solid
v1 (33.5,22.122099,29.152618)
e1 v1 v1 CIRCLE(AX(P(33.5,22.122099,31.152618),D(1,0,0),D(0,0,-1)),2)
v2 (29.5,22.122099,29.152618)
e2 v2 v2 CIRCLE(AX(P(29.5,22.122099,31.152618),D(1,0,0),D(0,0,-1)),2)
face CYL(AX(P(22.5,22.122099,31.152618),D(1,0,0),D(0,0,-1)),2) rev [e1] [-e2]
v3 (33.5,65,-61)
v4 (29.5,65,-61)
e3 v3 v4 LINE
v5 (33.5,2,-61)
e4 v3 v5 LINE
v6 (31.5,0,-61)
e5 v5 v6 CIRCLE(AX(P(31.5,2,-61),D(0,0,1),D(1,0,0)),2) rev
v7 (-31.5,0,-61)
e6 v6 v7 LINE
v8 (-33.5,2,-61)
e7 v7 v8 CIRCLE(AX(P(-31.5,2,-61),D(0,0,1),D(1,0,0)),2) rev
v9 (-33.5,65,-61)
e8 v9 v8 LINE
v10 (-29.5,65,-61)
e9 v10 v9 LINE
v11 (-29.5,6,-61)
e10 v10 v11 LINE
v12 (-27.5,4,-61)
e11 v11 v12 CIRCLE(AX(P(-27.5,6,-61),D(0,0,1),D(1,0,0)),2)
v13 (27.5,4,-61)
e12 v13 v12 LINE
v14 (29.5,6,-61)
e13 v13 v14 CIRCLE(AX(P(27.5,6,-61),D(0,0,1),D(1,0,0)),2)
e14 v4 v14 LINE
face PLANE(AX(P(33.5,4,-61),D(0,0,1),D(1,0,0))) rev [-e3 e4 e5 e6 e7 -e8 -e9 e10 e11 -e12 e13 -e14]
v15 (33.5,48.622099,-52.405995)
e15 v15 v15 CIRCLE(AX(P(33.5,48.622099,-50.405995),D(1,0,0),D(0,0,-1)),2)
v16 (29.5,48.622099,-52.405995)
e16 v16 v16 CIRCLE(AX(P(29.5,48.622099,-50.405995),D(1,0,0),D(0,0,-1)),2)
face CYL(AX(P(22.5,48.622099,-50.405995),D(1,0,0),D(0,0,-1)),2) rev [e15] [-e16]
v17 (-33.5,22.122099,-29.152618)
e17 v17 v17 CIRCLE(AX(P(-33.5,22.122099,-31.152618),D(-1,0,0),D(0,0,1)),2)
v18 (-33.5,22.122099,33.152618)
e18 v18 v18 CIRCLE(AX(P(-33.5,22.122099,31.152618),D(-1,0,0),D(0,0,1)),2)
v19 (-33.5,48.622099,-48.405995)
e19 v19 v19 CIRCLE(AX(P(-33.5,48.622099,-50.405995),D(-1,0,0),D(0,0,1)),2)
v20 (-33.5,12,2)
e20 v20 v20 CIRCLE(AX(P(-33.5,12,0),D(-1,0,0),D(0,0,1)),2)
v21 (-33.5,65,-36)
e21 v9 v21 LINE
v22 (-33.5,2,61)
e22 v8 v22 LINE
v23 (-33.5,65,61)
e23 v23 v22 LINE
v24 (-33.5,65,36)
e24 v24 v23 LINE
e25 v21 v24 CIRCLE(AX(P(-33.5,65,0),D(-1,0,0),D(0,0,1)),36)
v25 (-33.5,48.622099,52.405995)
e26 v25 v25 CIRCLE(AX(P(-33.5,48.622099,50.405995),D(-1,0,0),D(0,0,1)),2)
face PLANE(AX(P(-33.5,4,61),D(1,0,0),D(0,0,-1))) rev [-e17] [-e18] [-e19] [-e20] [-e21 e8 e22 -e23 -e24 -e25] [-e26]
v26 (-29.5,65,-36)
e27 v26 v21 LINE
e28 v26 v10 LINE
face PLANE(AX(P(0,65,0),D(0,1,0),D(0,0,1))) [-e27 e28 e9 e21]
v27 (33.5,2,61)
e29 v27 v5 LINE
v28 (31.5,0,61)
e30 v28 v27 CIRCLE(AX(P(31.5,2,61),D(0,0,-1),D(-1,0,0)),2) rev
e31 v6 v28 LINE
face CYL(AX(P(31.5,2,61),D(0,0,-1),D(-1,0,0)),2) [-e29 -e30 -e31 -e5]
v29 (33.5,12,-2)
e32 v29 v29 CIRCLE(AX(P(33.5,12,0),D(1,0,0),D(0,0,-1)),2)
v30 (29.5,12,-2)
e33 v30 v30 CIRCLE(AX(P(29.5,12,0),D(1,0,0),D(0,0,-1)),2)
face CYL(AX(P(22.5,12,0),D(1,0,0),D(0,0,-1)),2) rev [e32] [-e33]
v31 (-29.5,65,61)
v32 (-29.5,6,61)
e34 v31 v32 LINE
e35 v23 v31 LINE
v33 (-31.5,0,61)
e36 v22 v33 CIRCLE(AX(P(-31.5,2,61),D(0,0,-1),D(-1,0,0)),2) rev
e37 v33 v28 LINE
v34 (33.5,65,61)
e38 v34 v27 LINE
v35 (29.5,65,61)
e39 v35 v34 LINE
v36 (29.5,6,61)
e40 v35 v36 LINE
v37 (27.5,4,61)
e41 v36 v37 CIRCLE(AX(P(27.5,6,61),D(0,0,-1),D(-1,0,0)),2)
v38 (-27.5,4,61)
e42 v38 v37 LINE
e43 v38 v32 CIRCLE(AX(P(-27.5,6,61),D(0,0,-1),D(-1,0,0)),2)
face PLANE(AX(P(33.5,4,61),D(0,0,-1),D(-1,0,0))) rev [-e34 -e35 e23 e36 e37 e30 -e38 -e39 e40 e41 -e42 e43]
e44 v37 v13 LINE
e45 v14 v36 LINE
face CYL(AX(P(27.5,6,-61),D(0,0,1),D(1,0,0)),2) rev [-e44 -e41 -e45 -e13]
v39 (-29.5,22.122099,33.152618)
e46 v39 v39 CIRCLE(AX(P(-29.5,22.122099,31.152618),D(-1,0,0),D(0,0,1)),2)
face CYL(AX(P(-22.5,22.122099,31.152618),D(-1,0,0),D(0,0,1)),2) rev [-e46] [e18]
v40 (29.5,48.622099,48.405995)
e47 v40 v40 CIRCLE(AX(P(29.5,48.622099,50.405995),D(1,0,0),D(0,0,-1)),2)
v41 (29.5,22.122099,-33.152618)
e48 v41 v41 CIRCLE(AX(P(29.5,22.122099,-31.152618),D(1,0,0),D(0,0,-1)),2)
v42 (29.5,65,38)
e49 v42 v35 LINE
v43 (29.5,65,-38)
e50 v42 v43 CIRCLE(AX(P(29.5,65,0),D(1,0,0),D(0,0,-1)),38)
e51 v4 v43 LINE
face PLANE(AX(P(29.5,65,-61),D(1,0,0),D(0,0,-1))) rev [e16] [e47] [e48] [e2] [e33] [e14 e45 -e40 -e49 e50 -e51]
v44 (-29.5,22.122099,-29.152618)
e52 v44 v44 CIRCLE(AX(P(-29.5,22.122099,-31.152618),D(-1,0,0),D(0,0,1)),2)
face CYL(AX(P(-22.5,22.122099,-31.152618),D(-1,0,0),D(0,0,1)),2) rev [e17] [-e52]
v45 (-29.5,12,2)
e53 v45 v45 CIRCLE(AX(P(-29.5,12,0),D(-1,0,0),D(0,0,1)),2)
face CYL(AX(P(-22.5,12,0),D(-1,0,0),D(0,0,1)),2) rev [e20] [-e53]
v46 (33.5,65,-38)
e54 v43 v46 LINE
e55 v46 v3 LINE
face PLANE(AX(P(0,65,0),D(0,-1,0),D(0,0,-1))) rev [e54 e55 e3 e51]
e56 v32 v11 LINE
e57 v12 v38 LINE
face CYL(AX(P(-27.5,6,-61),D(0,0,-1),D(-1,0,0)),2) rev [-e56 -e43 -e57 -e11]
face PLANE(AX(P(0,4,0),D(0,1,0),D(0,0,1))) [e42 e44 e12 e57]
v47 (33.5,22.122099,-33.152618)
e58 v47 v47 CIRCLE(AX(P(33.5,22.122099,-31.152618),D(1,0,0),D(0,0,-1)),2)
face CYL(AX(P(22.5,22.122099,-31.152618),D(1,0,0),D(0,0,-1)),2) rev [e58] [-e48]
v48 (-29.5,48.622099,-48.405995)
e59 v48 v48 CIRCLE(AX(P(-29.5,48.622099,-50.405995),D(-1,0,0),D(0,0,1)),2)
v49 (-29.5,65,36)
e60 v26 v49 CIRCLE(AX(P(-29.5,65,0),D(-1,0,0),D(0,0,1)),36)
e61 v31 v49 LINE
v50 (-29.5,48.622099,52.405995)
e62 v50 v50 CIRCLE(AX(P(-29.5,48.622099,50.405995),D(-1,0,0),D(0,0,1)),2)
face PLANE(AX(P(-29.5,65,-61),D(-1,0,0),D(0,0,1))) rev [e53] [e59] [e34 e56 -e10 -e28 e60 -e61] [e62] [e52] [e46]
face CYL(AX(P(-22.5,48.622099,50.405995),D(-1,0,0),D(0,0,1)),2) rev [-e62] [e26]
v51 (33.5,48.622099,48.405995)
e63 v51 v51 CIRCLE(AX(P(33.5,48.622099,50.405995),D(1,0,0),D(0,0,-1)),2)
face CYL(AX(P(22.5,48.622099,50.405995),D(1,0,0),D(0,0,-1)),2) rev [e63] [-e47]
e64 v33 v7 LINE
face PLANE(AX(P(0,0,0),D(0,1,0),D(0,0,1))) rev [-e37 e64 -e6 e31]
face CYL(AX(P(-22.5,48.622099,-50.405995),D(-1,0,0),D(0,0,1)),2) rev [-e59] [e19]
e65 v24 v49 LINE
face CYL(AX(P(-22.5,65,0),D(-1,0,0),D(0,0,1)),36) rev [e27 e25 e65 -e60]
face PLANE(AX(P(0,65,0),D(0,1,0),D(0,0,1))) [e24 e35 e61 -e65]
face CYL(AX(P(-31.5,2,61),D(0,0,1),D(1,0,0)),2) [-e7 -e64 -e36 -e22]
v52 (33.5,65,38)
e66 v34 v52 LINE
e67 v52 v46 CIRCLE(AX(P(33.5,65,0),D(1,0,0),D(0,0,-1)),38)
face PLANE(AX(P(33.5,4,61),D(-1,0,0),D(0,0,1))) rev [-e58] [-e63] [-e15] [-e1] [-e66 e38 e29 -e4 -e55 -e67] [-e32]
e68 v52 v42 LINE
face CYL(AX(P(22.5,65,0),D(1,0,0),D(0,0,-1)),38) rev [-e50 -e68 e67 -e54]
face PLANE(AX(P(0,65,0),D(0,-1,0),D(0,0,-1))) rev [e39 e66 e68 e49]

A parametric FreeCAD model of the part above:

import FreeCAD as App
import Part
import Sketcher

V = App.Vector
Q = App.Units.Quantity


def edges_at(feature, points):
    """Names of the edges that pass closest to the given points."""
    edges = feature.Shape.Edges
    near = lambda p: min(range(len(edges)), key=lambda i: edges[i].distToShape(Part.Vertex(*p))[0])
    return sorted({f"Edge{near(p) + 1}" for p in points})

doc = App.newDocument("Part")
body = doc.addObject("PartDesign::Body", "Body")

# Sketch on XZ plane
sketch1 = body.newObject("Sketcher::SketchObject", "Sketch")
sketch1.AttachmentSupport = (doc.getObject("XZ_Plane"), [""])
sketch1.MapMode = "FlatFace"
sketch1.addGeometry([
    Part.LineSegment(V(-34, -61, 0), V(-34, 61, 0)),
    Part.LineSegment(V(-34, 61, 0), V(34, 61, 0)),
    Part.LineSegment(V(34, 61, 0), V(34, -61, 0)),
    Part.LineSegment(V(34, -61, 0), V(-34, -61, 0)),
], False)
sketch1.addConstraint([
    Sketcher.Constraint("Coincident", 0, 2, 1, 1),
    Sketcher.Constraint("Coincident", 1, 2, 2, 1),
    Sketcher.Constraint("Coincident", 2, 2, 3, 1),
    Sketcher.Constraint("Coincident", 3, 2, 0, 1),
    Sketcher.Constraint("Vertical", 0),
    Sketcher.Constraint("Horizontal", 1),
    Sketcher.Constraint("Vertical", 2),
    Sketcher.Constraint("Horizontal", 3),
    Sketcher.Constraint("Symmetric", 0, 2, 2, 2, -1, 1),
    Sketcher.Constraint("DistanceX", 1, 1, 1, 2, Q("67 mm")),
    Sketcher.Constraint("DistanceY", 0, 1, 0, 2, Q("122 mm")),
])
pad1 = body.newObject("PartDesign::Pad", "Pad")
pad1.Profile = sketch1
pad1.Length = 4
pad1.Reversed = True

# Sketch on XZ plane
sketch2 = body.newObject("Sketcher::SketchObject", "Sketch001")
sketch2.AttachmentSupport = (doc.getObject("XZ_Plane"), [""])
sketch2.MapMode = "FlatFace"
sketch2.AttachmentOffset = App.Placement(V(0, 0, -4), App.Rotation())
sketch2.addGeometry([
    Part.LineSegment(V(-33.5, -61, 0), V(-33.5, 61, 0)),  # 0
    Part.LineSegment(V(-33.5, 61, 0), V(-29.5, 61, 0)),  # 1
    Part.LineSegment(V(-29.5, 61, 0), V(-29.5, -61, 0)),  # 2
    Part.LineSegment(V(-29.5, -61, 0), V(-33.5, -61, 0)),  # 3
    Part.LineSegment(V(29.5, -61, 0), V(29.5, 61, 0)),  # 4
    Part.LineSegment(V(29.5, 61, 0), V(33.5, 61, 0)),  # 5
    Part.LineSegment(V(33.5, 61, 0), V(33.5, -61, 0)),  # 6
    Part.LineSegment(V(33.5, -61, 0), V(29.5, -61, 0)),  # 7
], False)
sketch2.addConstraint([
    Sketcher.Constraint("Coincident", 0, 2, 1, 1),
    Sketcher.Constraint("Coincident", 1, 2, 2, 1),
    Sketcher.Constraint("Coincident", 2, 2, 3, 1),
    Sketcher.Constraint("Coincident", 3, 2, 0, 1),
    Sketcher.Constraint("Coincident", 4, 2, 5, 1),
    Sketcher.Constraint("Coincident", 5, 2, 6, 1),
    Sketcher.Constraint("Coincident", 6, 2, 7, 1),
    Sketcher.Constraint("Coincident", 7, 2, 4, 1),
    Sketcher.Constraint("Vertical", 0),
    Sketcher.Constraint("Horizontal", 1),
    Sketcher.Constraint("Vertical", 2),
    Sketcher.Constraint("Horizontal", 3),
    Sketcher.Constraint("Vertical", 4),
    Sketcher.Constraint("Horizontal", 5),
    Sketcher.Constraint("Vertical", 6),
    Sketcher.Constraint("Horizontal", 7),
    Sketcher.Constraint("Symmetric", 2, 2, 4, 2, -1, 1),
    Sketcher.Constraint("Symmetric", 0, 2, 6, 2, -1, 1),
    Sketcher.Constraint("Horizontal", 1, 2, 4, 2),
    Sketcher.Constraint("DistanceX", 1, 1, 1, 2, Q("4 mm")),
    Sketcher.Constraint("DistanceY", 0, 1, 0, 2, Q("122 mm")),
    Sketcher.Constraint("DistanceX", 1, 2, 4, 2, Q("59 mm")),
])
pad2 = body.newObject("PartDesign::Pad", "Pad001")
pad2.Profile = sketch2
pad2.Length = 61
pad2.Reversed = True
doc.recompute()

fillet = body.newObject("PartDesign::Fillet", "Fillet")
fillet.Base = (pad2, edges_at(pad2, [
    (-29.5, 4, 0),
    (29.5, 4, 0),
    (33.5, 0, 0),
    (-33.5, 0, 0),
]))
fillet.Radius = 2

# Sketch on YZ plane
sketch3 = body.newObject("Sketcher::SketchObject", "Sketch002")
sketch3.AttachmentSupport = (doc.getObject("YZ_Plane"), [""])
sketch3.MapMode = "FlatFace"
sketch3.AttachmentOffset = App.Placement(V(0, 0, 33.5), App.Rotation())
sketch3.addGeometry([
    Part.Circle(V(65, 0, 0), V(0, 0, 1), 38),  # 0
    Part.Circle(V(12, 0, 0), V(0, 0, 1), 2),  # 1
    Part.Circle(V(22.1, 31.2, 0), V(0, 0, 1), 2),  # 2
    Part.Circle(V(48.6, 50.4, 0), V(0, 0, 1), 2),  # 3
    Part.Circle(V(48.6, -50.4, 0), V(0, 0, 1), 2),  # 4
    Part.Circle(V(22.1, -31.2, 0), V(0, 0, 1), 2),  # 5
], False)
sketch3.addConstraint([
    Sketcher.Constraint("Equal", 1, 2),
    Sketcher.Constraint("Equal", 2, 3),
    Sketcher.Constraint("Equal", 3, 4),
    Sketcher.Constraint("Equal", 4, 5),
    Sketcher.Constraint("Symmetric", 3, 3, 4, 3, -1),
    Sketcher.Constraint("Symmetric", 2, 3, 5, 3, -1),
    Sketcher.Constraint("PointOnObject", 0, 3, -1),
    Sketcher.Constraint("PointOnObject", 1, 3, -1),
    Sketcher.Constraint("Diameter", 0, Q("76 mm")),
    Sketcher.Constraint("Diameter", 1, Q("4 mm")),
    Sketcher.Constraint("DistanceX", -1, 1, 0, 3, Q("65 mm")),
    Sketcher.Constraint("DistanceX", -1, 1, 1, 3, Q("12 mm")),
    Sketcher.Constraint("DistanceX", 2, 3, 3, 3, Q("26.5 mm")),
    Sketcher.Constraint("DistanceX", -1, 1, 2, 3, Q("22.122099 mm")),
    Sketcher.Constraint("DistanceY", -1, 1, 2, 3, Q("31.152618 mm")),
    Sketcher.Constraint("DistanceY", 4, 3, 3, 3, Q("100.811991 mm")),
])
pocket1 = body.newObject("PartDesign::Pocket", "Pocket")
pocket1.Profile = sketch3
pocket1.Length = 11

# Sketch on YZ plane
sketch4 = body.newObject("Sketcher::SketchObject", "Sketch003")
sketch4.AttachmentSupport = (doc.getObject("YZ_Plane"), [""])
sketch4.MapMode = "FlatFace"
sketch4.AttachmentOffset = App.Placement(V(0, 0, -22.5), App.Rotation())
sketch4.addGeometry([
    Part.Circle(V(65, 0, 0), V(0, 0, 1), 36),  # 0
    Part.Circle(V(12, 0, 0), V(0, 0, 1), 2),  # 1
    Part.Circle(V(22.1, -31.2, 0), V(0, 0, 1), 2),  # 2
    Part.Circle(V(48.6, -50.4, 0), V(0, 0, 1), 2),  # 3
    Part.Circle(V(48.6, 50.4, 0), V(0, 0, 1), 2),  # 4
    Part.Circle(V(22.1, 31.2, 0), V(0, 0, 1), 2),  # 5
], False)
sketch4.addConstraint([
    Sketcher.Constraint("Equal", 1, 2),
    Sketcher.Constraint("Equal", 2, 3),
    Sketcher.Constraint("Equal", 3, 4),
    Sketcher.Constraint("Equal", 4, 5),
    Sketcher.Constraint("Symmetric", 3, 3, 4, 3, -1),
    Sketcher.Constraint("Symmetric", 2, 3, 5, 3, -1),
    Sketcher.Constraint("PointOnObject", 0, 3, -1),
    Sketcher.Constraint("PointOnObject", 1, 3, -1),
    Sketcher.Constraint("Diameter", 0, Q("72 mm")),
    Sketcher.Constraint("Diameter", 1, Q("4 mm")),
    Sketcher.Constraint("DistanceX", -1, 1, 0, 3, Q("65 mm")),
    Sketcher.Constraint("DistanceX", -1, 1, 1, 3, Q("12 mm")),
    Sketcher.Constraint("DistanceX", 2, 3, 3, 3, Q("26.5 mm")),
    Sketcher.Constraint("DistanceX", -1, 1, 2, 3, Q("22.122099 mm")),
    Sketcher.Constraint("DistanceY", 2, 3, -1, 1, Q("31.152618 mm")),
    Sketcher.Constraint("DistanceY", 3, 3, 4, 3, Q("100.811991 mm")),
])
pocket2 = body.newObject("PartDesign::Pocket", "Pocket001")
pocket2.Profile = sketch4
pocket2.Length = 11

doc.recompute()
